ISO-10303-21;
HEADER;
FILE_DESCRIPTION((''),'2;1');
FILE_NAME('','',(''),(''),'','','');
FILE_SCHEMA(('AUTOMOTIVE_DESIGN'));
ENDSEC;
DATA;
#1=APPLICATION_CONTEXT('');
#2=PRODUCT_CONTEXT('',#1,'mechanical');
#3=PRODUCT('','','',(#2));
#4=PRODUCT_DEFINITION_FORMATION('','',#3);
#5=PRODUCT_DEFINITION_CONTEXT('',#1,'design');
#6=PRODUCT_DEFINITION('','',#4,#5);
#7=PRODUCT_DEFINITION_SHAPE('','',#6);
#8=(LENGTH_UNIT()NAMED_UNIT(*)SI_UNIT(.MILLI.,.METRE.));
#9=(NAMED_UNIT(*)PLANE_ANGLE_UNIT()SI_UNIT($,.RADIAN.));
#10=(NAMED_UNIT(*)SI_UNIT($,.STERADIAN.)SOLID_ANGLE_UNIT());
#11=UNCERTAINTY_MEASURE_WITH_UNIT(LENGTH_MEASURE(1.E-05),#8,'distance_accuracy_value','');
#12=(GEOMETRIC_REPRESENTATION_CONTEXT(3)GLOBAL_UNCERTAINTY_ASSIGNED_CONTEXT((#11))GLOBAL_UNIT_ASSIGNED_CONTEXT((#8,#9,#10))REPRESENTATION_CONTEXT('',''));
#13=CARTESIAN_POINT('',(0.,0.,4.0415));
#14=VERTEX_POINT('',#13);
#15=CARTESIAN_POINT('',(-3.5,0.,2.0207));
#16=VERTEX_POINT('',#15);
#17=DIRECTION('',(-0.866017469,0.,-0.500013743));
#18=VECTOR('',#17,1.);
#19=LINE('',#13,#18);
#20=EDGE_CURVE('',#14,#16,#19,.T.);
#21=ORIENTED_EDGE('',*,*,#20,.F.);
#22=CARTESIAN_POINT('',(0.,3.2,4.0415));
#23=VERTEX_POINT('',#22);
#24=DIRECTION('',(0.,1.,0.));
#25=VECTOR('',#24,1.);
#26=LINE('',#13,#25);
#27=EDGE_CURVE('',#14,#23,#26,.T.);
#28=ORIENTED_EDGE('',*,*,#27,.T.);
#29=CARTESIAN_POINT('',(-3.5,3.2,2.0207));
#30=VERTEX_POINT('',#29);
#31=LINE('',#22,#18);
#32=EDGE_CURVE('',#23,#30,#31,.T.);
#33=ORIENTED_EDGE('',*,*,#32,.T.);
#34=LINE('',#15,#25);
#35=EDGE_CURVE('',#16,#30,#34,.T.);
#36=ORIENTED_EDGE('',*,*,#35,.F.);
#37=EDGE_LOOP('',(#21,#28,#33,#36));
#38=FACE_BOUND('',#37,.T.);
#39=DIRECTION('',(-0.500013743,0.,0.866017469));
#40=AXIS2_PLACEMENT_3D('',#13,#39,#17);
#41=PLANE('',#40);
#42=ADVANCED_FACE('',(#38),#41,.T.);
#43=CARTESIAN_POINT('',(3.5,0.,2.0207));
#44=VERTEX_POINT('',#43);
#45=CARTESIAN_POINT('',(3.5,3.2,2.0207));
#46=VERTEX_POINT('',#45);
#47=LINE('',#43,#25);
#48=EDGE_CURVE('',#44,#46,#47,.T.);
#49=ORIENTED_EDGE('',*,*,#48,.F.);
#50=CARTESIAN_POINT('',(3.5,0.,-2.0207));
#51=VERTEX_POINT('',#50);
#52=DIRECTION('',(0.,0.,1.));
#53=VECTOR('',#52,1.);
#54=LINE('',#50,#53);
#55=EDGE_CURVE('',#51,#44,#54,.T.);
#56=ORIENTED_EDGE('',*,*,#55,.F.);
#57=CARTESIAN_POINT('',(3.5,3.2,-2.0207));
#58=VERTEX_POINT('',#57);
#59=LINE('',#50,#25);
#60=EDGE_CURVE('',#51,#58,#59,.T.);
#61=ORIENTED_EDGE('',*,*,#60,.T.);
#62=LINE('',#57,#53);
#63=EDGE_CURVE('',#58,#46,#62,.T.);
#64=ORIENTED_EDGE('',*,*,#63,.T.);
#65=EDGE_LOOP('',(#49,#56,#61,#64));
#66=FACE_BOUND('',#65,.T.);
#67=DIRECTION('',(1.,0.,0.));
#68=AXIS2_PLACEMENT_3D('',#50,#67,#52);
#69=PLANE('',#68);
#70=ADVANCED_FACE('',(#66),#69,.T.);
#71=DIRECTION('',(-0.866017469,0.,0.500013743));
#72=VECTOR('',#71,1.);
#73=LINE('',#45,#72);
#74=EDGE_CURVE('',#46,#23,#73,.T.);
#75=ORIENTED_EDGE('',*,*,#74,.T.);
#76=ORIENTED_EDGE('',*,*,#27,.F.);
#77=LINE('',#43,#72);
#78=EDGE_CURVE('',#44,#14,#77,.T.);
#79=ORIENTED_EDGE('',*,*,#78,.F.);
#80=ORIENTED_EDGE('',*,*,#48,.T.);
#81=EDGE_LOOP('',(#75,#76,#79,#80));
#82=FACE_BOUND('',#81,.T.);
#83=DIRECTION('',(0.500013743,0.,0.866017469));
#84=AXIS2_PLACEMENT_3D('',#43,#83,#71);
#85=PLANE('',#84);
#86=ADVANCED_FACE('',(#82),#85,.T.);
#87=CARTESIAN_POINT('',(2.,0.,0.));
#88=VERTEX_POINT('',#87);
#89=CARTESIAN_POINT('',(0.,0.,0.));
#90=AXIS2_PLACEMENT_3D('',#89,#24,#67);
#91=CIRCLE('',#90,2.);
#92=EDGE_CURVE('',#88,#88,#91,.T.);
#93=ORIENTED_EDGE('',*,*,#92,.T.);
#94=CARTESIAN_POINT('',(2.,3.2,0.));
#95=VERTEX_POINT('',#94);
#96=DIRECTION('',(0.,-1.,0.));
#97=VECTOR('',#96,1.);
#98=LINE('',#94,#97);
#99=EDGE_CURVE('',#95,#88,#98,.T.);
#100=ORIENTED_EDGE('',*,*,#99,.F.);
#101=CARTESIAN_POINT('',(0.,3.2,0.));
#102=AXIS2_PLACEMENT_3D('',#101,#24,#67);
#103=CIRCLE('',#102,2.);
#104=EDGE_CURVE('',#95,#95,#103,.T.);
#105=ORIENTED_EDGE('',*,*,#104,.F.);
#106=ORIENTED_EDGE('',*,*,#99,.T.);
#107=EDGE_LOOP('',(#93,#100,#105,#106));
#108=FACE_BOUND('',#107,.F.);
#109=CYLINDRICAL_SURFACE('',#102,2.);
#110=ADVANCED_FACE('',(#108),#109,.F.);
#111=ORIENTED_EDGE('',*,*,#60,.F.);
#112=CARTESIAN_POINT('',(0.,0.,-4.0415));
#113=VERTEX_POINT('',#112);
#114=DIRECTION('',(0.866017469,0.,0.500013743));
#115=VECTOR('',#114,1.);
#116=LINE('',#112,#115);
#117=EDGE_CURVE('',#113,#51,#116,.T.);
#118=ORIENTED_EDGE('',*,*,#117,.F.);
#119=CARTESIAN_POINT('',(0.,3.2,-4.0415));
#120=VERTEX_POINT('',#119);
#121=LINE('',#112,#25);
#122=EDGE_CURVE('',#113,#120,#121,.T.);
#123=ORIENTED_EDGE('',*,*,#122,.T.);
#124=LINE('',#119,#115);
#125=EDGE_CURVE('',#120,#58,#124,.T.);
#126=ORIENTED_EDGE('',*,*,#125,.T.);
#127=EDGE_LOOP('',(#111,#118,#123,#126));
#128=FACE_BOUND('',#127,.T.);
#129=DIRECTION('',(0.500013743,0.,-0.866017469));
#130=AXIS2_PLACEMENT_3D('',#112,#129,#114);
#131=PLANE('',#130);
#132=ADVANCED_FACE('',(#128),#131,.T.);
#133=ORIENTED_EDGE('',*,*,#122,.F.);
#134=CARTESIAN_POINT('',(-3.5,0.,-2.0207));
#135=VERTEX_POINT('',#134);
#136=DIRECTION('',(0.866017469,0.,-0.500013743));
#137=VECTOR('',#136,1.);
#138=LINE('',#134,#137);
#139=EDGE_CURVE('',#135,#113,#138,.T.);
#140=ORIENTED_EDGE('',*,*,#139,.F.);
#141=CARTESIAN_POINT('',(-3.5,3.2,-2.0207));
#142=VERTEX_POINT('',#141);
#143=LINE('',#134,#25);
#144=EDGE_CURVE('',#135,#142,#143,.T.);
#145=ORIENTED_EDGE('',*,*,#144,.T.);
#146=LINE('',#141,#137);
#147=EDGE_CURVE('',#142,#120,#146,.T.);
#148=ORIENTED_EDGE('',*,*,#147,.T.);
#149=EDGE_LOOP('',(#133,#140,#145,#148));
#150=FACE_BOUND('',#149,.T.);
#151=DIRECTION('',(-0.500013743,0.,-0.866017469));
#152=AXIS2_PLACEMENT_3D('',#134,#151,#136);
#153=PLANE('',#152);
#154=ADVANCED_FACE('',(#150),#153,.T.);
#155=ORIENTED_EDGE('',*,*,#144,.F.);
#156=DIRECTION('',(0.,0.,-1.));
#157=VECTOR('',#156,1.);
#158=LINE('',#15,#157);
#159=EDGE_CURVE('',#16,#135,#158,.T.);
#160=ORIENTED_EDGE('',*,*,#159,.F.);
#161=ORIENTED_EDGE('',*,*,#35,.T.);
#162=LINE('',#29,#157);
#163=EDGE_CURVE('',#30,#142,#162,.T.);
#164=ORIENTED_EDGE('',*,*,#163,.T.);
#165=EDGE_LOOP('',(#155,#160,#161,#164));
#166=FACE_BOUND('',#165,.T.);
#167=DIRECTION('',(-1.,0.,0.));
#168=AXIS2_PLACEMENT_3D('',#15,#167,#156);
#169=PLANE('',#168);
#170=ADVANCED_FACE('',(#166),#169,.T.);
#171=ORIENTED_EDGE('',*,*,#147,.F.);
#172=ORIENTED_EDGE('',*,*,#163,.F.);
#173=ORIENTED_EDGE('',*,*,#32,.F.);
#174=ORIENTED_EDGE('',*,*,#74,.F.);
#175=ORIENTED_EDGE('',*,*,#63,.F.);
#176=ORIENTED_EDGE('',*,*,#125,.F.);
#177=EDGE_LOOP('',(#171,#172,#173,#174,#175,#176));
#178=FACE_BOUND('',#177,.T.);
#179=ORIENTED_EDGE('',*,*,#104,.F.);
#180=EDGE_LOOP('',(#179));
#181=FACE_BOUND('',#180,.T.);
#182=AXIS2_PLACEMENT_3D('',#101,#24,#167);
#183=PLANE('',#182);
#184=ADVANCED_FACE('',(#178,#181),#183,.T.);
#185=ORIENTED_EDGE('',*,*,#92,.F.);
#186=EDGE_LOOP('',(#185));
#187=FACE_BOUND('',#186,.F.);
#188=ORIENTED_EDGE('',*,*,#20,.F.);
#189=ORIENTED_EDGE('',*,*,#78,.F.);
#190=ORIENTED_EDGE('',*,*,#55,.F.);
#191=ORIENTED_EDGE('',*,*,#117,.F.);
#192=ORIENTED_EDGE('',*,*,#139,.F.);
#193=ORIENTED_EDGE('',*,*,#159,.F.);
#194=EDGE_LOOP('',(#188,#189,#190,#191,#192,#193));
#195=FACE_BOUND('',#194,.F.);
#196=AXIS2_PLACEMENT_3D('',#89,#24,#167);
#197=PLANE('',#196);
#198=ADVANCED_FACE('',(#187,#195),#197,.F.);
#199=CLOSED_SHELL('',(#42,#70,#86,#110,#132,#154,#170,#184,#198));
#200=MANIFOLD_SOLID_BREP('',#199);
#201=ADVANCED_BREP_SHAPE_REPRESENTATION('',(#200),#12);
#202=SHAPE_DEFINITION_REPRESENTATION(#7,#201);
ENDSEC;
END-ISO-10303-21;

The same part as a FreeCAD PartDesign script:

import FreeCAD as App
import Part
import Sketcher
from FreeCAD import Vector
Q = App.Units.Quantity

doc = App.newDocument("Part")
params = doc.addObject("Spreadsheet::Sheet", "Params")
for row, (alias, value) in enumerate([
    ("pad1_length", "3.2 mm"),
    ("sketch2_diameter", "4 mm"),
    ("pocket1_length", "4.3 mm"),
], start=1):
    params.set(f"A{row}", alias)
    params.set(f"B{row}", "=" + value)
    params.setAlias(f"B{row}", alias)

body = doc.addObject("PartDesign::Body", "Body")

# Sketch on XZ plane
sketch1 = doc.addObject("Sketcher::SketchObject", "Sketch")
body.addObject(sketch1)
sketch1.AttachmentSupport = (doc.XZ_Plane, [""])
sketch1.MapMode = "FlatFace"
sketch1.addGeometry([
    Part.LineSegment(Vector(-3.5, 2.0207, 0), Vector(0, 4.0415, 0)),  # 0
    Part.LineSegment(Vector(0, 4.0415, 0), Vector(3.5, 2.0207, 0)),  # 1
    Part.LineSegment(Vector(3.5, 2.0207, 0), Vector(3.5, -2.0207, 0)),  # 2
    Part.LineSegment(Vector(3.5, -2.0207, 0), Vector(0, -4.0415, 0)),  # 3
    Part.LineSegment(Vector(0, -4.0415, 0), Vector(-3.5, -2.0207, 0)),  # 4
    Part.LineSegment(Vector(-3.5, -2.0207, 0), Vector(-3.5, 2.0207, 0)),  # 5
], False)
sketch1.addConstraint([
    Sketcher.Constraint("Coincident", 0, 2, 1, 1),
    Sketcher.Constraint("Coincident", 1, 2, 2, 1),
    Sketcher.Constraint("Coincident", 2, 2, 3, 1),
    Sketcher.Constraint("Coincident", 3, 2, 4, 1),
    Sketcher.Constraint("Coincident", 4, 2, 5, 1),
    Sketcher.Constraint("Coincident", 5, 2, 0, 1),
    Sketcher.Constraint("Vertical", 2),
    Sketcher.Constraint("Vertical", 5),
    Sketcher.Constraint("Symmetric", 0, 2, 3, 2, -1, 1),
    Sketcher.Constraint("Symmetric", 1, 2, 4, 2, -1, 1),
    Sketcher.Constraint("PointOnObject", 0, 2, -2),
    Sketcher.Constraint("Parallel", 0, 3),
    Sketcher.Constraint("Horizontal", 2, 2, 4, 2),
    Sketcher.Constraint("DistanceX", -1, 1, 1, 2, Q("3.5 mm")),
    Sketcher.Constraint("Angle", 0, Q("30.001 deg")),
    Sketcher.Constraint("DistanceY", 2, 2, 2, 1, Q("4.0414 mm")),
])
pad1 = doc.addObject("PartDesign::Pad", "Pad")
body.addObject(pad1)
pad1.Profile = sketch1
pad1.setExpression("Length", "Params.pad1_length")
pad1.Reversed = True

# Sketch on XZ plane
sketch2 = doc.addObject("Sketcher::SketchObject", "Sketch001")
body.addObject(sketch2)
sketch2.AttachmentSupport = (doc.XZ_Plane, [""])
sketch2.MapMode = "FlatFace"
sketch2.AttachmentOffset = App.Placement(Vector(0, 0, -3.2), App.Rotation())
sketch2.addGeometry(Part.Circle(Vector(0, 0, 0), Vector(0, 0, 1), 2), False)
sketch2.addConstraint([
    Sketcher.Constraint("Coincident", 0, 3, -1, 1),
    Sketcher.Constraint("Diameter", 0, Q("4 mm")),
])
sketch2.setExpression("Constraints[1]", "Params.sketch2_diameter")
pocket1 = doc.addObject("PartDesign::Pocket", "Pocket")
body.addObject(pocket1)
pocket1.Profile = sketch2
pocket1.setExpression("Length", "Params.pocket1_length")
pocket1.Reversed = True

doc.recompute()
